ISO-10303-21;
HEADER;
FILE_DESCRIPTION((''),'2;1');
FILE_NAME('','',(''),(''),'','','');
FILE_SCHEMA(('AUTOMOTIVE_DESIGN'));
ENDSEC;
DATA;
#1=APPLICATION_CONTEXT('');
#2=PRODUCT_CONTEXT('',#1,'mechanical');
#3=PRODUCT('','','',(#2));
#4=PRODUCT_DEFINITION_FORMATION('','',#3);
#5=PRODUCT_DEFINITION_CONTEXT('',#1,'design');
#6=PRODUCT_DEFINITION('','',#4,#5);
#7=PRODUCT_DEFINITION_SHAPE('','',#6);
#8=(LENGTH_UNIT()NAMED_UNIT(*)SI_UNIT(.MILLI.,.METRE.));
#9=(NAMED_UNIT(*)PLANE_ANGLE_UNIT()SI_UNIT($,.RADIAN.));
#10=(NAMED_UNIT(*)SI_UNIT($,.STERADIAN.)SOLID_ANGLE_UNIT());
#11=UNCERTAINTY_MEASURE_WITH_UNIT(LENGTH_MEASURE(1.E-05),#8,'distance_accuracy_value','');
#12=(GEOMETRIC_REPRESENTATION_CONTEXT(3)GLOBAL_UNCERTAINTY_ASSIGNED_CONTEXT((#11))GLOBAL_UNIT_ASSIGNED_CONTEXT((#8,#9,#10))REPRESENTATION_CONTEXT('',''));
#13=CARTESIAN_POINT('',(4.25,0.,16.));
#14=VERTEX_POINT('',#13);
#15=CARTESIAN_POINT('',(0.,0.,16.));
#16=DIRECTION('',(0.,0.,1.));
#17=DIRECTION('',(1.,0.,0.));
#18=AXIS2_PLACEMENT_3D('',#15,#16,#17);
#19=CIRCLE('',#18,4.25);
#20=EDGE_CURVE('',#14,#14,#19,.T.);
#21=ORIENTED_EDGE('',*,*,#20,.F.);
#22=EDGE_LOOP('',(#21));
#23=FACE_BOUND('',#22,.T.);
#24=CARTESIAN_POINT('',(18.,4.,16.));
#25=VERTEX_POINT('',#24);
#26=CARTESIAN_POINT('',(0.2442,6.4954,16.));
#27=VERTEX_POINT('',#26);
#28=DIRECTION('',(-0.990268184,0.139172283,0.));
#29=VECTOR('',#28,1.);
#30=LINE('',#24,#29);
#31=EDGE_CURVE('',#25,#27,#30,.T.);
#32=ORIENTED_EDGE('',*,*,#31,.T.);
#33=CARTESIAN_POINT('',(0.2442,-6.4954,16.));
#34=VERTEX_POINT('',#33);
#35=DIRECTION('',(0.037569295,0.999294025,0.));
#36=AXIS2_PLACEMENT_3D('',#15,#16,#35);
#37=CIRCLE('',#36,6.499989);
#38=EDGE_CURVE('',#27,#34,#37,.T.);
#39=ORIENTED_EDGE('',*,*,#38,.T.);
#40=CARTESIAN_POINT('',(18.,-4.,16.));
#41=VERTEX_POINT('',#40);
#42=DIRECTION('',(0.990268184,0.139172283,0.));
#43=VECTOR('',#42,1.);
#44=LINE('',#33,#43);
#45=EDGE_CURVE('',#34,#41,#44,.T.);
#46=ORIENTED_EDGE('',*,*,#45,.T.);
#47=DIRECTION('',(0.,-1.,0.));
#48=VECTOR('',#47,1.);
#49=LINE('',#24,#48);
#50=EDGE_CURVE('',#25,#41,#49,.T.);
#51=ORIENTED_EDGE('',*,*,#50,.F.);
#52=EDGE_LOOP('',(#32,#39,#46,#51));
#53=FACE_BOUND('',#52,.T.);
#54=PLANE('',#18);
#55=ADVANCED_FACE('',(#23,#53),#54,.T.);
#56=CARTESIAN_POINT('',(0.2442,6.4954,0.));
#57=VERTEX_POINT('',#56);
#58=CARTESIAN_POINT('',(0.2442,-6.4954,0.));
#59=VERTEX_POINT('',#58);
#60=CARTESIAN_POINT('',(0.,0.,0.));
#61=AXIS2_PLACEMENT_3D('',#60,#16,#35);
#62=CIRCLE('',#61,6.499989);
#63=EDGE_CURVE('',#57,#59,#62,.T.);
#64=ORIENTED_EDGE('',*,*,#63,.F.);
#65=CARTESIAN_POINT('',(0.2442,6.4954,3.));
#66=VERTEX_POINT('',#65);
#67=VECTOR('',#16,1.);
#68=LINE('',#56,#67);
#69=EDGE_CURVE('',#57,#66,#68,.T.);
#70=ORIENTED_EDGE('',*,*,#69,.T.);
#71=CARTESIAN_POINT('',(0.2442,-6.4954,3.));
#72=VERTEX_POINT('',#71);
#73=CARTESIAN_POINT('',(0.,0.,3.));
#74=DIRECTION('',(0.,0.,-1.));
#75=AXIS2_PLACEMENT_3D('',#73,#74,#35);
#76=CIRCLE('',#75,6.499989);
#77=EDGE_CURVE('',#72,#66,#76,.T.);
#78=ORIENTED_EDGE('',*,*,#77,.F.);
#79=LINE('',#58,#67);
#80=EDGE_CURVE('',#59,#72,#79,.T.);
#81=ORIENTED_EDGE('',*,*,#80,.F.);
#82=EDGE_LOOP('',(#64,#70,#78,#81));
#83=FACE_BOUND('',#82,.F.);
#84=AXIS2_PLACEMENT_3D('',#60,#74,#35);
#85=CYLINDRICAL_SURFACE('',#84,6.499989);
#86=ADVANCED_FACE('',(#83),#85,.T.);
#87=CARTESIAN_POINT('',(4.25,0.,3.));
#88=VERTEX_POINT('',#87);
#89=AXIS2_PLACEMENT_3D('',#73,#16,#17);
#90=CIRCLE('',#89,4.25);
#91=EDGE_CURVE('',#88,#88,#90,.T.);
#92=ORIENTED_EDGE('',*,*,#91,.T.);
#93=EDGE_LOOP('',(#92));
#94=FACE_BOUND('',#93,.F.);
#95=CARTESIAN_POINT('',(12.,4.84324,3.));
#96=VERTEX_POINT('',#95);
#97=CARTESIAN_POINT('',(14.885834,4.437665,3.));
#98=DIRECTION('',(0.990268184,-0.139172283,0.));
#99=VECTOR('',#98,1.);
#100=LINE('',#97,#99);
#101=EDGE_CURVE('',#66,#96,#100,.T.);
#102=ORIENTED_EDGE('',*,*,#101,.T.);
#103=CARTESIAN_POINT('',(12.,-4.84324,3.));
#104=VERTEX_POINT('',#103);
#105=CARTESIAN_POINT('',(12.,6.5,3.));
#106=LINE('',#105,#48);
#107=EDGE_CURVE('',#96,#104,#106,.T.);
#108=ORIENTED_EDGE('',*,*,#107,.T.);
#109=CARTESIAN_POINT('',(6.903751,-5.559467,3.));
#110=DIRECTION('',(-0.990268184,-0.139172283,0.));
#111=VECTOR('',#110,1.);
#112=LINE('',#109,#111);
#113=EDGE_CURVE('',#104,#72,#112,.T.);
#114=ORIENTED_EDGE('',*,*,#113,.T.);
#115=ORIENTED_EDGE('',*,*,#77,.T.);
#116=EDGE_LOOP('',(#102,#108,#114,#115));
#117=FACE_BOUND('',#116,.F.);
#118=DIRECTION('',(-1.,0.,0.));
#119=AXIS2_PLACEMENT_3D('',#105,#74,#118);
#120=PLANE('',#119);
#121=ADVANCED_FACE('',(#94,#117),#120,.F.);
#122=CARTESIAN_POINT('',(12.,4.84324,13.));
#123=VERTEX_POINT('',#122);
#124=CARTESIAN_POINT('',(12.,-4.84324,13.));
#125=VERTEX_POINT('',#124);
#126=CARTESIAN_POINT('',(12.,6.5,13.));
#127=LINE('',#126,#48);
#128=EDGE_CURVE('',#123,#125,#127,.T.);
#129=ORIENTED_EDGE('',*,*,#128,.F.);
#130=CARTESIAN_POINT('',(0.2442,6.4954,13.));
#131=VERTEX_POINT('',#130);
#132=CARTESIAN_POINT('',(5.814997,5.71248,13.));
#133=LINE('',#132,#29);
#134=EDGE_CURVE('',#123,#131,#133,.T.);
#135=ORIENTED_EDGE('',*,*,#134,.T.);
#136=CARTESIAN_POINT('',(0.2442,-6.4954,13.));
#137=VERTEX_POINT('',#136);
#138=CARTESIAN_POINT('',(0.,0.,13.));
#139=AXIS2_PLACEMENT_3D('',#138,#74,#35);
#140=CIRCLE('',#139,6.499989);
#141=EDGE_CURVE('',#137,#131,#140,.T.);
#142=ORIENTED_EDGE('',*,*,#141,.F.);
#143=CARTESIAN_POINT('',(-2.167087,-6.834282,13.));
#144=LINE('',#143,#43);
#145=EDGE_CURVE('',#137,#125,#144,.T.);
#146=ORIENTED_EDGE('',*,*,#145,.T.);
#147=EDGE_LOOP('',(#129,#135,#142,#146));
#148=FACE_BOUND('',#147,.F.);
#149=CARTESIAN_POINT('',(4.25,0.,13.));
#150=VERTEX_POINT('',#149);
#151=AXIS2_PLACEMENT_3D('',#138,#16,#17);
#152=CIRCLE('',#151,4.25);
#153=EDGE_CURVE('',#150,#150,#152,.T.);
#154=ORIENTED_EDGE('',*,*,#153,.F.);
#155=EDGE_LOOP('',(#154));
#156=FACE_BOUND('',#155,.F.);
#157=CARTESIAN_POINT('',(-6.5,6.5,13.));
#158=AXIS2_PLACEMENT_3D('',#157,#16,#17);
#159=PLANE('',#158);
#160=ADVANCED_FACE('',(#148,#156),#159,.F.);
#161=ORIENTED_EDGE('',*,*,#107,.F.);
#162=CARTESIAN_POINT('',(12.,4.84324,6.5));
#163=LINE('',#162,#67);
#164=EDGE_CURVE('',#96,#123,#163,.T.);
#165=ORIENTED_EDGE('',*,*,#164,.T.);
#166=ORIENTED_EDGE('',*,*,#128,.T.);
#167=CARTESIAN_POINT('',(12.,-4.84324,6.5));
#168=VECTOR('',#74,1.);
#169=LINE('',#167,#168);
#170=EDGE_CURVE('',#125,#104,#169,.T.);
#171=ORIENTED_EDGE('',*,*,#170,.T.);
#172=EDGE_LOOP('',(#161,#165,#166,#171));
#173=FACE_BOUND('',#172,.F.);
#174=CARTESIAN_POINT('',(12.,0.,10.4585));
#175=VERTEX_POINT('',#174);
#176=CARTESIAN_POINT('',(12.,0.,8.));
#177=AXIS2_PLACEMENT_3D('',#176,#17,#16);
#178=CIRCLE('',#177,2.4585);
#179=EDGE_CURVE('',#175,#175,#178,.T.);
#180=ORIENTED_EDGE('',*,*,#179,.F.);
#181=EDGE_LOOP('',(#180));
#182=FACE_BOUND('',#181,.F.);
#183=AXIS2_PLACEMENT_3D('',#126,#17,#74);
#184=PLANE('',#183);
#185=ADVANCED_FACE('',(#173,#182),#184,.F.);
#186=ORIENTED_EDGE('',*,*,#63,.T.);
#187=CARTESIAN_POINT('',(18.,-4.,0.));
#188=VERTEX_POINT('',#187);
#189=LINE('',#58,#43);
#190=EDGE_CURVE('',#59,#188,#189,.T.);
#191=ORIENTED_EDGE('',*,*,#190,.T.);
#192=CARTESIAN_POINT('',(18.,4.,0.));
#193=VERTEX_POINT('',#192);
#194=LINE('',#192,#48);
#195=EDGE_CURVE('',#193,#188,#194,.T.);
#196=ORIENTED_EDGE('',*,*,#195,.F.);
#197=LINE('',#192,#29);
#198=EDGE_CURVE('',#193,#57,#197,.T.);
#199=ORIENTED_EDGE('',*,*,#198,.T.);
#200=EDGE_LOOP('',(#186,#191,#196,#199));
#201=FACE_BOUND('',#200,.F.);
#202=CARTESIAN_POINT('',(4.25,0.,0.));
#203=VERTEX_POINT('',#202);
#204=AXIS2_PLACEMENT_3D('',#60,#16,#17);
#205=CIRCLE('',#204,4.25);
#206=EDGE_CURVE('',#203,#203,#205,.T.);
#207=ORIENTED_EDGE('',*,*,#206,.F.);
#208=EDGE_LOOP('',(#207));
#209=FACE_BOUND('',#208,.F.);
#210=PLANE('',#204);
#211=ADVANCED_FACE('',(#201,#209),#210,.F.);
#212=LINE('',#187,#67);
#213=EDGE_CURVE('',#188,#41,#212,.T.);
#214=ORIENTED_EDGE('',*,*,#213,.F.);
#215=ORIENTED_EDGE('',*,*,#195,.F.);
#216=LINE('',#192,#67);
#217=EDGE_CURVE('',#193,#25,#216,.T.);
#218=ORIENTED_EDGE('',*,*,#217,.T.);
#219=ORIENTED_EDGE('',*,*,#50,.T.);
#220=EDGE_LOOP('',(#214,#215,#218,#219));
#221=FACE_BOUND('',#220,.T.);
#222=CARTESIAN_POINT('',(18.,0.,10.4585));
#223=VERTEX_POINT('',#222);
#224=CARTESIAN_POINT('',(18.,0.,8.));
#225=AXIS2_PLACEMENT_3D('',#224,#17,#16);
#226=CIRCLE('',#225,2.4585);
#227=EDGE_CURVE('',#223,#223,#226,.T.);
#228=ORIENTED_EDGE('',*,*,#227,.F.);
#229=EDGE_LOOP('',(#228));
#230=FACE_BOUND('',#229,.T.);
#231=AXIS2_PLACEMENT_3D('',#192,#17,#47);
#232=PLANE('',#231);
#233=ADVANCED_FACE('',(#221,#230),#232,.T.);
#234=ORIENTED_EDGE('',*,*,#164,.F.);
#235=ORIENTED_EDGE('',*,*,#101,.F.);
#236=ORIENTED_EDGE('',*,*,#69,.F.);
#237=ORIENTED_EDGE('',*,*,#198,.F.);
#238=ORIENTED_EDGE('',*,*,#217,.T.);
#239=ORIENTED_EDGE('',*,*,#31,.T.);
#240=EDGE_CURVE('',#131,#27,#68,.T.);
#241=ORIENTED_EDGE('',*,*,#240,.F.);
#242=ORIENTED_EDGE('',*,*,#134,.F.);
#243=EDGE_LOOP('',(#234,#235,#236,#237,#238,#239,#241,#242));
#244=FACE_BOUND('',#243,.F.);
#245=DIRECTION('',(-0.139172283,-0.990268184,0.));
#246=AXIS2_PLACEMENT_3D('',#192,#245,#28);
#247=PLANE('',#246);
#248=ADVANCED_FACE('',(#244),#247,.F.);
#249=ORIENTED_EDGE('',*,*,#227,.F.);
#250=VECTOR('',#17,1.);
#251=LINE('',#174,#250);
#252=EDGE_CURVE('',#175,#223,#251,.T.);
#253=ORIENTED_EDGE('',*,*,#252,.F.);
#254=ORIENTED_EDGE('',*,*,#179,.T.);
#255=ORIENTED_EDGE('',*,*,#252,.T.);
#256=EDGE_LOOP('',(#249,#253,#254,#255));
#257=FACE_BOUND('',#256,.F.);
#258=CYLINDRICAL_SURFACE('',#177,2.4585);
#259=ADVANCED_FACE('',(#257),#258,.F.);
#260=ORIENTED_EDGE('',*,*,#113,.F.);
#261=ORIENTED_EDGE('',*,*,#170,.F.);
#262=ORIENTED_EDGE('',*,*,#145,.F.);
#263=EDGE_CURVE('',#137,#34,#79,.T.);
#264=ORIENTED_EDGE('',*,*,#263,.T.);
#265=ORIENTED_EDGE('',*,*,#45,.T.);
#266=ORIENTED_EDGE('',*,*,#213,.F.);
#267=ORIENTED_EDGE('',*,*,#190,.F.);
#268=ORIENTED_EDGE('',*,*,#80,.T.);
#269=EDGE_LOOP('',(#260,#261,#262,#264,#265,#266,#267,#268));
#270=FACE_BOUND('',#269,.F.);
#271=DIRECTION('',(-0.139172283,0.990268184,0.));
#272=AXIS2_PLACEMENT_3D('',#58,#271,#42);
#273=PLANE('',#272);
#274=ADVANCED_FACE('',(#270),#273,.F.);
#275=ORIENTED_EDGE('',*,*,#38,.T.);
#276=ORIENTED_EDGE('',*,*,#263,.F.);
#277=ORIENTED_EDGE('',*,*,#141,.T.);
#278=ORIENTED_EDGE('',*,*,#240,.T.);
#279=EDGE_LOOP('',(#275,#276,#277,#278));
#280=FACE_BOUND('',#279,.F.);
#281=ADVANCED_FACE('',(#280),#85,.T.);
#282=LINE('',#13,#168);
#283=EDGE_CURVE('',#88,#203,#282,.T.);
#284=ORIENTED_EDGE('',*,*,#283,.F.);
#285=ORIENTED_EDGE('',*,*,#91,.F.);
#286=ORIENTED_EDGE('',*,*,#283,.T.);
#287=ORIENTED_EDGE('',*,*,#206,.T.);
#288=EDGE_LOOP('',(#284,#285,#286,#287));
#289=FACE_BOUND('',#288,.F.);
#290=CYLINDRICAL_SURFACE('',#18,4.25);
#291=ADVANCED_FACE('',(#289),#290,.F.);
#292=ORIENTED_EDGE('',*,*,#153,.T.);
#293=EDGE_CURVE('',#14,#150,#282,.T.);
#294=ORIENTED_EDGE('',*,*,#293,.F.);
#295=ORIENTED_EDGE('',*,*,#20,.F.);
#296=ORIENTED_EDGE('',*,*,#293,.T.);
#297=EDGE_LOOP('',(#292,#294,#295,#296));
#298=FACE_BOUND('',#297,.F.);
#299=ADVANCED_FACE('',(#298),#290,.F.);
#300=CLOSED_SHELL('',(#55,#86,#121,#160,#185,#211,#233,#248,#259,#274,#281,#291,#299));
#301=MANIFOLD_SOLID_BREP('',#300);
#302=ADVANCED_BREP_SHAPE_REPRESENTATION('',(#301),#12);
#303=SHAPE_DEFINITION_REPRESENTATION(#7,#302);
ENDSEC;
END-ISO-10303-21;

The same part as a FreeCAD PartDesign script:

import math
import FreeCAD as App
import Part
import Sketcher
Q = App.Units.Quantity


def add_polygon(sketch, points):
    """Adds a closed chain of lines whose ends are joined by coincident constraints."""
    first, n = sketch.GeometryCount, len(points)
    for a, b in zip(points, points[1:] + points[:1]):
        sketch.addGeometry(Part.LineSegment(App.Vector(*a, 0), App.Vector(*b, 0)), False)
    for i in range(n):
        sketch.addConstraint(Sketcher.Constraint("Coincident", first + i, 2, first + (i + 1) % n, 1))

doc = App.newDocument("Part")
body = doc.addObject("PartDesign::Body", "Body")

sketch1 = doc.addObject("Sketcher::SketchObject", "Sketch")
body.addObject(sketch1)
sketch1.AttachmentSupport = (doc.XY_Plane, [""])
sketch1.MapMode = "FlatFace"
sketch1.addGeometry([
    Part.LineSegment(App.Vector(18, 4, 0), App.Vector(0, 6, 0)),
    Part.ArcOfCircle(Part.Circle(App.Vector(0, 0, 0), App.Vector(0, 0, 1), 6), math.radians(88), math.radians(272)),
    Part.LineSegment(App.Vector(0, -6, 0), App.Vector(18, -4, 0)),
    Part.LineSegment(App.Vector(18, -4, 0), App.Vector(18, 4, 0)),
], False)
sketch1.addConstraint([
    Sketcher.Constraint("Coincident", 0, 2, 1, 1),
    Sketcher.Constraint("Coincident", 1, 2, 2, 1),
    Sketcher.Constraint("Coincident", 2, 2, 3, 1),
    Sketcher.Constraint("Coincident", 3, 2, 0, 1),
    Sketcher.Constraint("Vertical", 3),
    Sketcher.Constraint("Coincident", 1, 3, -1, 1),
    Sketcher.Constraint("Vertical", 0, 2, 1, 2),
    Sketcher.Constraint("Equal", 0, 2),
    Sketcher.Constraint("Radius", 1, Q("6.5 mm")),
    Sketcher.Constraint("DistanceY", 3, 1, 3, 2, Q("8 mm")),
    Sketcher.Constraint("Angle", 2, Q("8 deg")),
    Sketcher.Constraint("DistanceX", -1, 1, 2, 2, Q("18 mm")),
])
pad1 = doc.addObject("PartDesign::Pad", "Pad")
body.addObject(pad1)
pad1.Profile = sketch1
pad1.Length = 16

sketch2 = doc.addObject("Sketcher::SketchObject", "Sketch001")
body.addObject(sketch2)
sketch2.AttachmentSupport = (doc.XY_Plane, [""])
sketch2.MapMode = "FlatFace"
sketch2.AttachmentOffset = App.Placement(App.Vector(0, 0, 16), App.Rotation())
sketch2.addGeometry(Part.Circle(App.Vector(0, 0, 0), App.Vector(0, 0, 1), 4.2), False)
sketch2.addConstraint([
    Sketcher.Constraint("Coincident", 0, 3, -1, 1),
    Sketcher.Constraint("Diameter", 0, Q("8.5 mm")),
])
pocket1 = doc.addObject("PartDesign::Pocket", "Pocket")
body.addObject(pocket1)
pocket1.Profile = sketch2
pocket1.Type = "ThroughAll"

sketch3 = doc.addObject("Sketcher::SketchObject", "Sketch002")
body.addObject(sketch3)
sketch3.AttachmentSupport = (doc.XZ_Plane, [""])
sketch3.MapMode = "FlatFace"
sketch3.AttachmentOffset = App.Placement(App.Vector(0, 0, -6.5), App.Rotation())
add_polygon(sketch3, [(12, 3), (-6, 3), (-6, 13), (12, 13)])
sketch3.addConstraint([
    Sketcher.Constraint("Horizontal", 0),
    Sketcher.Constraint("Vertical", 1),
    Sketcher.Constraint("Horizontal", 2),
    Sketcher.Constraint("Vertical", 3),
    Sketcher.Constraint("DistanceY", -1, 1, 0, 2, Q("3 mm")),
    Sketcher.Constraint("DistanceY", 1, 1, 1, 2, Q("10 mm")),
    Sketcher.Constraint("DistanceX", 0, 2, 0, 1, Q("18.5 mm")),
    Sketcher.Constraint("DistanceX", -1, 1, 2, 2, Q("12 mm")),
])
pocket2 = doc.addObject("PartDesign::Pocket", "Pocket001")
body.addObject(pocket2)
pocket2.Profile = sketch3
pocket2.Type = "ThroughAll"
pocket2.Reversed = True

sketch4 = doc.addObject("Sketcher::SketchObject", "Sketch003")
body.addObject(sketch4)
sketch4.AttachmentSupport = (doc.YZ_Plane, [""])
sketch4.MapMode = "FlatFace"
sketch4.AttachmentOffset = App.Placement(App.Vector(0, 0, 12), App.Rotation())
sketch4.addGeometry(Part.Circle(App.Vector(0, 8, 0), App.Vector(0, 0, 1), 2.5), False)
sketch4.addConstraint([
    Sketcher.Constraint("PointOnObject", 0, 3, -2),
    Sketcher.Constraint("Diameter", 0, Q("4.917 mm")),
    Sketcher.Constraint("DistanceY", -1, 1, 0, 3, Q("8 mm")),
])
doc.recompute()
hole = doc.addObject("PartDesign::Hole", "Hole")
body.addObject(hole)
hole.Profile = sketch4
hole.ThreadType = "None"
hole.Diameter = 4.917
hole.DepthType = "Dimension"
hole.Depth = 6
hole.DrillPoint = "Flat"
hole.Reversed = True

doc.recompute()
